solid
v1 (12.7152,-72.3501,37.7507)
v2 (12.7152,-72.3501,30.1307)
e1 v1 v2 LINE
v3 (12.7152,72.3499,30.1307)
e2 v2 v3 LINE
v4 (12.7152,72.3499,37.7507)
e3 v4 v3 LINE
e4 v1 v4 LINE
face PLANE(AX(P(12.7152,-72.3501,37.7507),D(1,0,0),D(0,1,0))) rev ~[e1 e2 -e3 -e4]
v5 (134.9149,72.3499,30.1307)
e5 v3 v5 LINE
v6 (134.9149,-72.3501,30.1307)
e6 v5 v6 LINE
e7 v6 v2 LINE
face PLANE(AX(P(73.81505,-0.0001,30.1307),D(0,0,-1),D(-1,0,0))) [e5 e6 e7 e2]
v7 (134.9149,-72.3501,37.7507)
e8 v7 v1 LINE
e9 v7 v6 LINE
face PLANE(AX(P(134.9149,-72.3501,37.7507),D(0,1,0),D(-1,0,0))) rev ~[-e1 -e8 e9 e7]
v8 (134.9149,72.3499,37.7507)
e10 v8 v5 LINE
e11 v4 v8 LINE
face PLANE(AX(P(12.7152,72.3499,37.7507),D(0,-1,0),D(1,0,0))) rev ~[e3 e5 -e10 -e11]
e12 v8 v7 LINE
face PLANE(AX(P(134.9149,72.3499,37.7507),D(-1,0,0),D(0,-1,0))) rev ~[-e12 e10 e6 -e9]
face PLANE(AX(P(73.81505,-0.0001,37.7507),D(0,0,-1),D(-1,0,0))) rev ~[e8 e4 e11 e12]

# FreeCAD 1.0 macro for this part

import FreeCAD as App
import Part
import Sketcher
Q = App.Units.Quantity


def add_polygon(sketch, points):
    """Adds a closed chain of lines whose ends are joined by coincident constraints."""
    first, n = sketch.GeometryCount, len(points)
    for a, b in zip(points, points[1:] + points[:1]):
        sketch.addGeometry(Part.LineSegment(App.Vector(*a, 0), App.Vector(*b, 0)), False)
    for i in range(n):
        sketch.addConstraint(Sketcher.Constraint("Coincident", first + i, 2, first + (i + 1) % n, 1))

doc = App.newDocument("Part")
body = doc.addObject("PartDesign::Body", "Body")

# Sketch on XY plane
sketch1 = body.newObject("Sketcher::SketchObject", "Sketch")
sketch1.AttachmentSupport = (doc.getObject("XY_Plane"), [""])
sketch1.MapMode = "FlatFace"
sketch1.AttachmentOffset = App.Placement(App.Vector(0, 0, 37.7507), App.Rotation())
add_polygon(sketch1, [(12.7152, 72.3499), (134.9149, 72.3499), (134.9149, -72.3501), (12.7152, -72.3501)])  # lines 0-3
sketch1.addConstraint(Sketcher.Constraint("Horizontal", 0))
sketch1.addConstraint(Sketcher.Constraint("Vertical", 1))
sketch1.addConstraint(Sketcher.Constraint("Horizontal", 2))
sketch1.addConstraint(Sketcher.Constraint("Vertical", 3))
sketch1.addConstraint(Sketcher.Constraint("DistanceX", 0, 1, 0, 2, Q("4.811 in")))
sketch1.addConstraint(Sketcher.Constraint("DistanceY", 1, 2, 1, 1, 144.7))
sketch1.addConstraint(Sketcher.Constraint("DistanceX", -1, 1, 0, 2, Q("5.3116 in")))
sketch1.addConstraint(Sketcher.Constraint("DistanceY", -1, 1, 0, 2, 72.35))
pad1 = body.newObject("PartDesign::Pad", "Pad")
pad1.Profile = sketch1
pad1.Length = Q("0.3 in")
pad1.Reversed = True

doc.recompute()
